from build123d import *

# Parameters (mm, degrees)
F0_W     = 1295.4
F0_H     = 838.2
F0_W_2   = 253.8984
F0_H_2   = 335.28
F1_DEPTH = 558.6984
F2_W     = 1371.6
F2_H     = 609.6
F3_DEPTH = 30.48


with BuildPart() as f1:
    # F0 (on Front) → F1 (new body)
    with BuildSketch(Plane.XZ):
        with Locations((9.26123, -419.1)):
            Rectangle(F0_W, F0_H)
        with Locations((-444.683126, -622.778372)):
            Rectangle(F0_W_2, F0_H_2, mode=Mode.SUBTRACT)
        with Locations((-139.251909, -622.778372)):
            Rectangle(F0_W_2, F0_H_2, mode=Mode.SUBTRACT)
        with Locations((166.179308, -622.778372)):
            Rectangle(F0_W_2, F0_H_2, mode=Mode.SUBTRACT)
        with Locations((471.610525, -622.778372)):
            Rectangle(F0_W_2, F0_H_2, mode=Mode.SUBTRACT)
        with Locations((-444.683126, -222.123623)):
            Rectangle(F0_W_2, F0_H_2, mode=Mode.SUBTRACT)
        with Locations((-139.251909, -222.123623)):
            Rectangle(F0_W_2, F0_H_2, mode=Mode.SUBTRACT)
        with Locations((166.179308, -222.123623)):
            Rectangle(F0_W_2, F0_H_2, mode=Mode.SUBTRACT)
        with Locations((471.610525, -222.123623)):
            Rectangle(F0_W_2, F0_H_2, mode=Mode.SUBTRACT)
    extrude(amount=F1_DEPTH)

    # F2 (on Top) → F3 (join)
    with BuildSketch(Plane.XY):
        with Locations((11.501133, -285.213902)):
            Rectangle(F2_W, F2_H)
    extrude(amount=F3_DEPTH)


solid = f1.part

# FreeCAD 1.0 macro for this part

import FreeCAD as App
import Part
import Sketcher
from FreeCAD import Vector
Q = App.Units.Quantity

doc = App.newDocument("Part")
params = doc.addObject("Spreadsheet::Sheet", "Params")
for row, (alias, value) in enumerate([
    ("sketch1_width", "51 in"),
    ("sketch1_height", "33 in"),
    ("sketch1_height2", "13.2 in"),
    ("sketch1_width2", "9.996 in"),
    ("pad1_length", "21.996 in"),
    ("sketch2_width", "54 in"),
    ("sketch2_height", "24 in"),
    ("pad2_length", "1.2 in"),
], start=1):
    params.set(f"A{row}", alias)
    params.set(f"B{row}", "=" + value)
    params.setAlias(f"B{row}", alias)

body = doc.addObject("PartDesign::Body", "Body")

# Sketch on XZ plane
sketch1 = body.newObject("Sketcher::SketchObject", "Sketch")
sketch1.AttachmentSupport = (doc.getObject("XZ_Plane"), [""])
sketch1.MapMode = "FlatFace"
sketch1.addGeometry([
    Part.LineSegment(Vector(-638, 0, 0), Vector(-638, -838, 0)),  # 0
    Part.LineSegment(Vector(-638, -838, 0), Vector(657, -838, 0)),  # 1
    Part.LineSegment(Vector(657, -838, 0), Vector(657, 0, 0)),  # 2
    Part.LineSegment(Vector(657, 0, 0), Vector(-638, 0, 0)),  # 3
    Part.LineSegment(Vector(-318, -790, 0), Vector(-572, -790, 0)),  # 4
    Part.LineSegment(Vector(-572, -790, 0), Vector(-572, -455, 0)),  # 5
    Part.LineSegment(Vector(-572, -455, 0), Vector(-318, -455, 0)),  # 6
    Part.LineSegment(Vector(-318, -455, 0), Vector(-318, -790, 0)),  # 7
    Part.LineSegment(Vector(-12, -790, 0), Vector(-266, -790, 0)),  # 8
    Part.LineSegment(Vector(-266, -790, 0), Vector(-266, -455, 0)),  # 9
    Part.LineSegment(Vector(-266, -455, 0), Vector(-12, -455, 0)),  # 10
    Part.LineSegment(Vector(-12, -455, 0), Vector(-12, -790, 0)),  # 11
    Part.LineSegment(Vector(293, -790, 0), Vector(39, -790, 0)),  # 12
    Part.LineSegment(Vector(39, -790, 0), Vector(39, -455, 0)),  # 13
    Part.LineSegment(Vector(39, -455, 0), Vector(293, -455, 0)),  # 14
    Part.LineSegment(Vector(293, -455, 0), Vector(293, -790, 0)),  # 15
    Part.LineSegment(Vector(599, -790, 0), Vector(345, -790, 0)),  # 16
    Part.LineSegment(Vector(345, -790, 0), Vector(345, -455, 0)),  # 17
    Part.LineSegment(Vector(345, -455, 0), Vector(599, -455, 0)),  # 18
    Part.LineSegment(Vector(599, -455, 0), Vector(599, -790, 0)),  # 19
    Part.LineSegment(Vector(-318, -390, 0), Vector(-572, -390, 0)),  # 20
    Part.LineSegment(Vector(-572, -390, 0), Vector(-572, -54, 0)),  # 21
    Part.LineSegment(Vector(-572, -54, 0), Vector(-318, -54, 0)),  # 22
    Part.LineSegment(Vector(-318, -54, 0), Vector(-318, -390, 0)),  # 23
    Part.LineSegment(Vector(-12, -390, 0), Vector(-266, -390, 0)),  # 24
    Part.LineSegment(Vector(-266, -390, 0), Vector(-266, -54, 0)),  # 25
    Part.LineSegment(Vector(-266, -54, 0), Vector(-12, -54, 0)),  # 26
    Part.LineSegment(Vector(-12, -54, 0), Vector(-12, -390, 0)),  # 27
    Part.LineSegment(Vector(293, -390, 0), Vector(39, -390, 0)),  # 28
    Part.LineSegment(Vector(39, -390, 0), Vector(39, -54, 0)),  # 29
    Part.LineSegment(Vector(39, -54, 0), Vector(293, -54, 0)),  # 30
    Part.LineSegment(Vector(293, -54, 0), Vector(293, -390, 0)),  # 31
    Part.LineSegment(Vector(599, -390, 0), Vector(345, -390, 0)),  # 32
    Part.LineSegment(Vector(345, -390, 0), Vector(345, -54, 0)),  # 33
    Part.LineSegment(Vector(345, -54, 0), Vector(599, -54, 0)),  # 34
    Part.LineSegment(Vector(599, -54, 0), Vector(599, -390, 0)),  # 35
], False)
sketch1.addConstraint([
    Sketcher.Constraint("Coincident", 0, 2, 1, 1),
    Sketcher.Constraint("Coincident", 1, 2, 2, 1),
    Sketcher.Constraint("Coincident", 2, 2, 3, 1),
    Sketcher.Constraint("Coincident", 3, 2, 0, 1),
    Sketcher.Constraint("Coincident", 4, 2, 5, 1),
    Sketcher.Constraint("Coincident", 5, 2, 6, 1),
    Sketcher.Constraint("Coincident", 6, 2, 7, 1),
    Sketcher.Constraint("Coincident", 7, 2, 4, 1),
    Sketcher.Constraint("Coincident", 8, 2, 9, 1),
    Sketcher.Constraint("Coincident", 9, 2, 10, 1),
    Sketcher.Constraint("Coincident", 10, 2, 11, 1),
    Sketcher.Constraint("Coincident", 11, 2, 8, 1),
    Sketcher.Constraint("Coincident", 12, 2, 13, 1),
    Sketcher.Constraint("Coincident", 13, 2, 14, 1),
    Sketcher.Constraint("Coincident", 14, 2, 15, 1),
    Sketcher.Constraint("Coincident", 15, 2, 12, 1),
    Sketcher.Constraint("Coincident", 16, 2, 17, 1),
    Sketcher.Constraint("Coincident", 17, 2, 18, 1),
    Sketcher.Constraint("Coincident", 18, 2, 19, 1),
    Sketcher.Constraint("Coincident", 19, 2, 16, 1),
    Sketcher.Constraint("Coincident", 20, 2, 21, 1),
    Sketcher.Constraint("Coincident", 21, 2, 22, 1),
    Sketcher.Constraint("Coincident", 22, 2, 23, 1),
    Sketcher.Constraint("Coincident", 23, 2, 20, 1),
    Sketcher.Constraint("Coincident", 24, 2, 25, 1),
    Sketcher.Constraint("Coincident", 25, 2, 26, 1),
    Sketcher.Constraint("Coincident", 26, 2, 27, 1),
    Sketcher.Constraint("Coincident", 27, 2, 24, 1),
    Sketcher.Constraint("Coincident", 28, 2, 29, 1),
    Sketcher.Constraint("Coincident", 29, 2, 30, 1),
    Sketcher.Constraint("Coincident", 30, 2, 31, 1),
    Sketcher.Constraint("Coincident", 31, 2, 28, 1),
    Sketcher.Constraint("Coincident", 32, 2, 33, 1),
    Sketcher.Constraint("Coincident", 33, 2, 34, 1),
    Sketcher.Constraint("Coincident", 34, 2, 35, 1),
    Sketcher.Constraint("Coincident", 35, 2, 32, 1),
    Sketcher.Constraint("Vertical", 0),
    Sketcher.Constraint("Horizontal", 1),
    Sketcher.Constraint("Vertical", 2),
    Sketcher.Constraint("Horizontal", 3),
    Sketcher.Constraint("Horizontal", 4),
    Sketcher.Constraint("Vertical", 5),
    Sketcher.Constraint("Horizontal", 6),
    Sketcher.Constraint("Vertical", 7),
    Sketcher.Constraint("Horizontal", 8),
    Sketcher.Constraint("Vertical", 9),
    Sketcher.Constraint("Horizontal", 10),
    Sketcher.Constraint("Vertical", 11),
    Sketcher.Constraint("Horizontal", 12),
    Sketcher.Constraint("Vertical", 13),
    Sketcher.Constraint("Horizontal", 14),
    Sketcher.Constraint("Vertical", 15),
    Sketcher.Constraint("Horizontal", 16),
    Sketcher.Constraint("Vertical", 17),
    Sketcher.Constraint("Horizontal", 18),
    Sketcher.Constraint("Vertical", 19),
    Sketcher.Constraint("Horizontal", 20),
    Sketcher.Constraint("Vertical", 21),
    Sketcher.Constraint("Horizontal", 22),
    Sketcher.Constraint("Vertical", 23),
    Sketcher.Constraint("Horizontal", 24),
    Sketcher.Constraint("Vertical", 25),
    Sketcher.Constraint("Horizontal", 26),
    Sketcher.Constraint("Vertical", 27),
    Sketcher.Constraint("Horizontal", 28),
    Sketcher.Constraint("Vertical", 29),
    Sketcher.Constraint("Horizontal", 30),
    Sketcher.Constraint("Vertical", 31),
    Sketcher.Constraint("Horizontal", 32),
    Sketcher.Constraint("Vertical", 33),
    Sketcher.Constraint("Horizontal", 34),
    Sketcher.Constraint("Vertical", 35),
    Sketcher.Constraint("PointOnObject", 2, 2, -1),
    Sketcher.Constraint("Horizontal", 7, 2, 8, 2),
    Sketcher.Constraint("Horizontal", 6, 2, 9, 2),
    Sketcher.Constraint("Horizontal", 11, 2, 12, 2),
    Sketcher.Constraint("Horizontal", 10, 2, 13, 2),
    Sketcher.Constraint("Horizontal", 15, 2, 16, 2),
    Sketcher.Constraint("Horizontal", 14, 2, 17, 2),
    Sketcher.Constraint("Horizontal", 23, 2, 24, 2),
    Sketcher.Constraint("Horizontal", 22, 2, 25, 2),
    Sketcher.Constraint("Horizontal", 27, 2, 28, 2),
    Sketcher.Constraint("Horizontal", 26, 2, 29, 2),
    Sketcher.Constraint("Horizontal", 31, 2, 32, 2),
    Sketcher.Constraint("Horizontal", 30, 2, 33, 2),
    Sketcher.Constraint("Vertical", 5, 2, 20, 2),
    Sketcher.Constraint("Vertical", 7, 2, 22, 2),
    Sketcher.Constraint("Vertical", 9, 2, 24, 2),
    Sketcher.Constraint("Vertical", 11, 2, 26, 2),
    Sketcher.Constraint("Vertical", 13, 2, 28, 2),
    Sketcher.Constraint("Vertical", 15, 2, 30, 2),
    Sketcher.Constraint("Vertical", 17, 2, 32, 2),
    Sketcher.Constraint("Vertical", 19, 2, 34, 2),
    Sketcher.Constraint("Equal", 6, 8),
    Sketcher.Constraint("Equal", 10, 12),
    Sketcher.Constraint("Equal", 14, 16),
    Sketcher.Constraint("Equal", 19, 21),
    Sketcher.Constraint("DistanceX", 1, 1, 1, 2, Q("51 in")),
    Sketcher.Constraint("DistanceY", 0, 2, 0, 1, Q("33 in")),
    Sketcher.Constraint("DistanceY", 5, 1, 5, 2, Q("13.2 in")),
    Sketcher.Constraint("DistanceX", 4, 2, 4, 1, Q("9.996 in")),
    Sketcher.Constraint("DistanceX", 0, 2, -1, 1, Q("638.43877 mm")),
    Sketcher.Constraint("DistanceY", 4, 2, -1, 1, Q("790.418372 mm")),
    Sketcher.Constraint("DistanceX", 8, 2, -1, 1, Q("266.201109 mm")),
    Sketcher.Constraint("DistanceX", -1, 1, 14, 2, Q("293.128508 mm")),
    Sketcher.Constraint("DistanceY", 5, 2, 20, 2, Q("65.374749 mm")),
    Sketcher.Constraint("DistanceX", 4, 2, -1, 1, Q("571.632326 mm")),
    Sketcher.Constraint("DistanceX", -1, 1, 16, 2, Q("344.661325 mm")),
])
sketch1.setExpression("Constraints[97]", "Params.sketch1_width")
sketch1.setExpression("Constraints[98]", "Params.sketch1_height")
sketch1.setExpression("Constraints[99]", "Params.sketch1_height2")
sketch1.setExpression("Constraints[100]", "Params.sketch1_width2")
pad1 = body.newObject("PartDesign::Pad", "Pad")
pad1.Profile = sketch1
pad1.setExpression("Length", "Params.pad1_length")

# Sketch on XY plane
sketch2 = body.newObject("Sketcher::SketchObject", "Sketch001")
sketch2.AttachmentSupport = (doc.getObject("XY_Plane"), [""])
sketch2.MapMode = "FlatFace"
sketch2.addGeometry([
    Part.LineSegment(Vector(-674, 20, 0), Vector(-674, -590, 0)),
    Part.LineSegment(Vector(-674, -590, 0), Vector(697, -590, 0)),
    Part.LineSegment(Vector(697, -590, 0), Vector(697, 20, 0)),
    Part.LineSegment(Vector(697, 20, 0), Vector(-674, 20, 0)),
], False)
sketch2.addConstraint([
    Sketcher.Constraint("Coincident", 0, 2, 1, 1),
    Sketcher.Constraint("Coincident", 1, 2, 2, 1),
    Sketcher.Constraint("Coincident", 2, 2, 3, 1),
    Sketcher.Constraint("Coincident", 3, 2, 0, 1),
    Sketcher.Constraint("Vertical", 0),
    Sketcher.Constraint("Horizontal", 1),
    Sketcher.Constraint("Vertical", 2),
    Sketcher.Constraint("Horizontal", 3),
    Sketcher.Constraint("DistanceX", 1, 1, 1, 2, Q("54 in")),
    Sketcher.Constraint("DistanceY", 0, 2, 0, 1, Q("24 in")),
    Sketcher.Constraint("DistanceY", 0, 2, -1, 1, Q("590.013902 mm")),
    Sketcher.Constraint("DistanceX", 0, 2, -1, 1, Q("674.298867 mm")),
])
sketch2.setExpression("Constraints[8]", "Params.sketch2_width")
sketch2.setExpression("Constraints[9]", "Params.sketch2_height")
pad2 = body.newObject("PartDesign::Pad", "Pad001")
pad2.Profile = sketch2
pad2.setExpression("Length", "Params.pad2_length")

doc.recompute()
